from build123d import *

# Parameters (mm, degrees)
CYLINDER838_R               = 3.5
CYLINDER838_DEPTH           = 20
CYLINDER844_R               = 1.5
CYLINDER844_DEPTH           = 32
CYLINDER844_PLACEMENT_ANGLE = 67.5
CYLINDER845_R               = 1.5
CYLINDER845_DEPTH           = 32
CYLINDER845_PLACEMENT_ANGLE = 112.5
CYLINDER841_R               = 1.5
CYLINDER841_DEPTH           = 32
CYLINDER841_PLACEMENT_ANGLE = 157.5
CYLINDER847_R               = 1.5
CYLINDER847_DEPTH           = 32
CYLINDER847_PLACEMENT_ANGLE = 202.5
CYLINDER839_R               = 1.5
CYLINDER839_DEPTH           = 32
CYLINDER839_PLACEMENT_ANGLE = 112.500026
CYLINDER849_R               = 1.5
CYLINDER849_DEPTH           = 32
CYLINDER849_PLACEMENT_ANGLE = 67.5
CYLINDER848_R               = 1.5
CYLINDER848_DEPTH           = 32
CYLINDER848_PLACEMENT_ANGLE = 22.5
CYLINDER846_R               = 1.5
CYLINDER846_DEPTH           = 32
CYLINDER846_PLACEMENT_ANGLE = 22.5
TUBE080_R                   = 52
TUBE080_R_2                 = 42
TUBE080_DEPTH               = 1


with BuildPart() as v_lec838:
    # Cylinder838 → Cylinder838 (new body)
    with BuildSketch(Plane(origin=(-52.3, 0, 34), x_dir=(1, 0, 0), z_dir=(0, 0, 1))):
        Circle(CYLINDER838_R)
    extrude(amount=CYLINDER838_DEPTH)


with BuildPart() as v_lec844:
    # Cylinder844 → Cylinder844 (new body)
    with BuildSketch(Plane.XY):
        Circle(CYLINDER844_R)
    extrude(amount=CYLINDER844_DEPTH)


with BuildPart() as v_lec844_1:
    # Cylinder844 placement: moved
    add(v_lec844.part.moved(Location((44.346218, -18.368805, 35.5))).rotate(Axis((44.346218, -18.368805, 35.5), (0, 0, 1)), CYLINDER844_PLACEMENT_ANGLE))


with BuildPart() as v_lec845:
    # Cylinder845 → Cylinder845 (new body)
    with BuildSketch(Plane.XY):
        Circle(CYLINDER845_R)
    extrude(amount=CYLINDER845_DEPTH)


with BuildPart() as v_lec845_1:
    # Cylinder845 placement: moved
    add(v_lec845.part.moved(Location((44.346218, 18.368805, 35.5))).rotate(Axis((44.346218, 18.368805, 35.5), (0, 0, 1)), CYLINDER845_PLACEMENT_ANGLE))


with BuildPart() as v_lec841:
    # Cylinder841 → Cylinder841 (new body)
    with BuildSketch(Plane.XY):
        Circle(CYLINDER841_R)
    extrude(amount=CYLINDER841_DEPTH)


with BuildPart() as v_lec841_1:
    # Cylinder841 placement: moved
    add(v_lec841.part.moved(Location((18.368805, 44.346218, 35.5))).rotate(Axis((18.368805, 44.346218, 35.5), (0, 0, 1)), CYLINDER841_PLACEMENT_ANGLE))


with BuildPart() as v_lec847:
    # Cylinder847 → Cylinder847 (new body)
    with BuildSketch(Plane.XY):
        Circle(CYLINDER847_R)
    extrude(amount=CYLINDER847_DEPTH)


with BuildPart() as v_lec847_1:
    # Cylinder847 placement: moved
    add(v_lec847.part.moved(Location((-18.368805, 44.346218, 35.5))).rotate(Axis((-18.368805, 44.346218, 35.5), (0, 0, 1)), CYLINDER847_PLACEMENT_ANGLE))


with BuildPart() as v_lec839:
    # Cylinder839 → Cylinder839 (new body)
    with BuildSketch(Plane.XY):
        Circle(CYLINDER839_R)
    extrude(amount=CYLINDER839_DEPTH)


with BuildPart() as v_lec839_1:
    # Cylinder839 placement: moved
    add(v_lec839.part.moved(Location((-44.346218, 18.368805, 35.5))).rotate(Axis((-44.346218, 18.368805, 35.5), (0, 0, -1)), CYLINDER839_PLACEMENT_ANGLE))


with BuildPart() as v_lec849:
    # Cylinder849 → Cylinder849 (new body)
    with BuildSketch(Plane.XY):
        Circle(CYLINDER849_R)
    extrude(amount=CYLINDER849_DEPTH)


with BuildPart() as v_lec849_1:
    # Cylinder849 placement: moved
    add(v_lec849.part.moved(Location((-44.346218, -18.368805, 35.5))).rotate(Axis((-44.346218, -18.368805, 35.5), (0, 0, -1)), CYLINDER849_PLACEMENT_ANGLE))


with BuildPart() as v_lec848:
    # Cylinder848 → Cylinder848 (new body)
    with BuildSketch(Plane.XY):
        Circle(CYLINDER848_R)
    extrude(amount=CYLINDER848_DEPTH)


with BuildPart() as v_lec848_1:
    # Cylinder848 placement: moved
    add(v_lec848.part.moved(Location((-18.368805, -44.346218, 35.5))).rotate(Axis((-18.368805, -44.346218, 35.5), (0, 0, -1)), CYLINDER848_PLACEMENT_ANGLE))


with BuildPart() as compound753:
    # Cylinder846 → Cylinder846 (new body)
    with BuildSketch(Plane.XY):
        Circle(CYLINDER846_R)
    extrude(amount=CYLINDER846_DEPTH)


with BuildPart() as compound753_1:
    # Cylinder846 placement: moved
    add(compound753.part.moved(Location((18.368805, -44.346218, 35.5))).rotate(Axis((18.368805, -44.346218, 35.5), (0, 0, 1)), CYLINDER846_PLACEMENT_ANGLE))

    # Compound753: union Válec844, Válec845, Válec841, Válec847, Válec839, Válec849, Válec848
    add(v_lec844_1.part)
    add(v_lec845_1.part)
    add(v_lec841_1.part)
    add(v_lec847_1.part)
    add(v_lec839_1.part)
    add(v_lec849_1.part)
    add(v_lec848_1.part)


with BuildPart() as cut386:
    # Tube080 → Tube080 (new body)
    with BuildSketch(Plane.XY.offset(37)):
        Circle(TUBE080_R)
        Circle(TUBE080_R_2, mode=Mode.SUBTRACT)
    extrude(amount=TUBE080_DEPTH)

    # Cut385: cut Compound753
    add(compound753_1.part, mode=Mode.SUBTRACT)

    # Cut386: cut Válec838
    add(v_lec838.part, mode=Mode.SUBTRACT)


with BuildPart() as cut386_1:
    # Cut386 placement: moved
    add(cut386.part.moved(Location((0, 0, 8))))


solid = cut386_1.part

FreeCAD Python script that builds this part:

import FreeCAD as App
import Part
import Sketcher

V = App.Vector

doc = App.newDocument("Part")
params = doc.addObject("Spreadsheet::Sheet", "Params")
for row, (alias, value) in enumerate([
    ("sketch1_diameter", "7 mm"),
    ("pad1_length", "20 mm"),
    ("sketch2_diameter", "3 mm"),
    ("pad2_length", "32 mm"),
    ("sketch3_diameter", "3 mm"),
    ("pad3_length", "32 mm"),
    ("sketch4_diameter", "3 mm"),
    ("pad4_length", "32 mm"),
    ("sketch5_diameter", "3 mm"),
    ("pad5_length", "32 mm"),
    ("sketch6_diameter", "3 mm"),
    ("pad6_length", "32 mm"),
    ("sketch7_diameter", "3 mm"),
    ("pad7_length", "32 mm"),
    ("sketch8_diameter", "3 mm"),
    ("pad8_length", "32 mm"),
    ("sketch9_diameter", "3 mm"),
    ("pad9_length", "32 mm"),
    ("sketch10_diameter", "104 mm"),
    ("sketch10_diameter2", "84 mm"),
    ("pad10_length", "1 mm"),
], start=1):
    params.set(f"A{row}", alias)
    params.set(f"B{row}", "=" + value)
    params.setAlias(f"B{row}", alias)

body = doc.addObject("PartDesign::Body", "Body")

sketch1 = body.newObject("Sketcher::SketchObject", "Sketch")
sketch1.AttachmentSupport = (doc.getObject("XY_Plane"), [""])
sketch1.MapMode = "FlatFace"
sketch1.AttachmentOffset = App.Placement(V(0, 0, 34), App.Rotation())
sketch1.addGeometry(Part.Circle(V(-52.3, 0, 0), V(0, 0, 1), 3.5), False)
sketch1.addConstraint(Sketcher.Constraint("PointOnObject", 0, 3, -1))
sketch1.addConstraint(Sketcher.Constraint("Diameter", 0, 7.0))
sketch1.addConstraint(Sketcher.Constraint("DistanceX", 0, 3, -1, 1, 52.3))
sketch1.setExpression("Constraints[1]", "Params.sketch1_diameter")
pad1 = body.newObject("PartDesign::Pad", "Pad")
pad1.Profile = sketch1
pad1.setExpression("Length", "Params.pad1_length")
body2 = doc.addObject("PartDesign::Body", "Body001")

sketch2 = body2.newObject("Sketcher::SketchObject", "Sketch001")
sketch2.AttachmentSupport = (doc.getObject("XY_Plane001"), [""])
sketch2.MapMode = "FlatFace"
sketch2.addGeometry(Part.Circle(V(0, 0, 0), V(0, 0, 1), 1.5), False)
sketch2.addConstraint(Sketcher.Constraint("Coincident", 0, 3, -1, 1))
sketch2.addConstraint(Sketcher.Constraint("Diameter", 0, 3.0))
sketch2.setExpression("Constraints[1]", "Params.sketch2_diameter")
pad2 = body2.newObject("PartDesign::Pad", "Pad001")
pad2.Profile = sketch2
pad2.setExpression("Length", "Params.pad2_length")
body3 = doc.addObject("PartDesign::Body", "Body002")
doc.recompute()

body2.Placement = App.Placement(V(44.346218, -18.368805, 35.5), App.Rotation(V(0, 0, 1), 67.5))
boolean = body3.newObject("PartDesign::Boolean", "Boolean")
boolean.Type = "Fuse"
boolean.addObjects([body2])
body4 = doc.addObject("PartDesign::Body", "Body003")

sketch3 = body4.newObject("Sketcher::SketchObject", "Sketch002")
sketch3.AttachmentSupport = (doc.getObject("XY_Plane003"), [""])
sketch3.MapMode = "FlatFace"
sketch3.addGeometry(Part.Circle(V(0, 0, 0), V(0, 0, 1), 1.5), False)
sketch3.addConstraint(Sketcher.Constraint("Coincident", 0, 3, -1, 1))
sketch3.addConstraint(Sketcher.Constraint("Diameter", 0, 3.0))
sketch3.setExpression("Constraints[1]", "Params.sketch3_diameter")
pad3 = body4.newObject("PartDesign::Pad", "Pad002")
pad3.Profile = sketch3
pad3.setExpression("Length", "Params.pad3_length")
body5 = doc.addObject("PartDesign::Body", "Body004")
doc.recompute()

body4.Placement = App.Placement(V(44.346218, 18.368805, 35.5), App.Rotation(V(0, 0, 1), 112.5))
boolean2 = body5.newObject("PartDesign::Boolean", "Boolean001")
boolean2.Type = "Fuse"
boolean2.addObjects([body4])
body6 = doc.addObject("PartDesign::Body", "Body005")

sketch4 = body6.newObject("Sketcher::SketchObject", "Sketch003")
sketch4.AttachmentSupport = (doc.getObject("XY_Plane005"), [""])
sketch4.MapMode = "FlatFace"
sketch4.addGeometry(Part.Circle(V(0, 0, 0), V(0, 0, 1), 1.5), False)
sketch4.addConstraint(Sketcher.Constraint("Coincident", 0, 3, -1, 1))
sketch4.addConstraint(Sketcher.Constraint("Diameter", 0, 3.0))
sketch4.setExpression("Constraints[1]", "Params.sketch4_diameter")
pad4 = body6.newObject("PartDesign::Pad", "Pad003")
pad4.Profile = sketch4
pad4.setExpression("Length", "Params.pad4_length")
body7 = doc.addObject("PartDesign::Body", "Body006")
doc.recompute()

body6.Placement = App.Placement(V(18.368805, 44.346218, 35.5), App.Rotation(V(0, 0, 1), 157.5))
boolean3 = body7.newObject("PartDesign::Boolean", "Boolean002")
boolean3.Type = "Fuse"
boolean3.addObjects([body6])
body8 = doc.addObject("PartDesign::Body", "Body007")

sketch5 = body8.newObject("Sketcher::SketchObject", "Sketch004")
sketch5.AttachmentSupport = (doc.getObject("XY_Plane007"), [""])
sketch5.MapMode = "FlatFace"
sketch5.addGeometry(Part.Circle(V(0, 0, 0), V(0, 0, 1), 1.5), False)
sketch5.addConstraint(Sketcher.Constraint("Coincident", 0, 3, -1, 1))
sketch5.addConstraint(Sketcher.Constraint("Diameter", 0, 3.0))
sketch5.setExpression("Constraints[1]", "Params.sketch5_diameter")
pad5 = body8.newObject("PartDesign::Pad", "Pad004")
pad5.Profile = sketch5
pad5.setExpression("Length", "Params.pad5_length")
body9 = doc.addObject("PartDesign::Body", "Body008")
doc.recompute()

body8.Placement = App.Placement(V(-18.368805, 44.346218, 35.5), App.Rotation(V(0, 0, 1), 202.5))
boolean4 = body9.newObject("PartDesign::Boolean", "Boolean003")
boolean4.Type = "Fuse"
boolean4.addObjects([body8])
body10 = doc.addObject("PartDesign::Body", "Body009")

sketch6 = body10.newObject("Sketcher::SketchObject", "Sketch005")
sketch6.AttachmentSupport = (doc.getObject("XY_Plane009"), [""])
sketch6.MapMode = "FlatFace"
sketch6.addGeometry(Part.Circle(V(0, 0, 0), V(0, 0, 1), 1.5), False)
sketch6.addConstraint(Sketcher.Constraint("Coincident", 0, 3, -1, 1))
sketch6.addConstraint(Sketcher.Constraint("Diameter", 0, 3.0))
sketch6.setExpression("Constraints[1]", "Params.sketch6_diameter")
pad6 = body10.newObject("PartDesign::Pad", "Pad005")
pad6.Profile = sketch6
pad6.setExpression("Length", "Params.pad6_length")
body11 = doc.addObject("PartDesign::Body", "Body010")
doc.recompute()

body10.Placement = App.Placement(V(-44.346218, 18.368805, 35.5), App.Rotation(V(0, 0, -1), 112.500026))
boolean5 = body11.newObject("PartDesign::Boolean", "Boolean004")
boolean5.Type = "Fuse"
boolean5.addObjects([body10])
body12 = doc.addObject("PartDesign::Body", "Body011")

sketch7 = body12.newObject("Sketcher::SketchObject", "Sketch006")
sketch7.AttachmentSupport = (doc.getObject("XY_Plane011"), [""])
sketch7.MapMode = "FlatFace"
sketch7.addGeometry(Part.Circle(V(0, 0, 0), V(0, 0, 1), 1.5), False)
sketch7.addConstraint(Sketcher.Constraint("Coincident", 0, 3, -1, 1))
sketch7.addConstraint(Sketcher.Constraint("Diameter", 0, 3.0))
sketch7.setExpression("Constraints[1]", "Params.sketch7_diameter")
pad7 = body12.newObject("PartDesign::Pad", "Pad006")
pad7.Profile = sketch7
pad7.setExpression("Length", "Params.pad7_length")
body13 = doc.addObject("PartDesign::Body", "Body012")
doc.recompute()

body12.Placement = App.Placement(V(-44.346218, -18.368805, 35.5), App.Rotation(V(0, 0, -1), 67.5))
boolean6 = body13.newObject("PartDesign::Boolean", "Boolean005")
boolean6.Type = "Fuse"
boolean6.addObjects([body12])
body14 = doc.addObject("PartDesign::Body", "Body013")

sketch8 = body14.newObject("Sketcher::SketchObject", "Sketch007")
sketch8.AttachmentSupport = (doc.getObject("XY_Plane013"), [""])
sketch8.MapMode = "FlatFace"
sketch8.addGeometry(Part.Circle(V(0, 0, 0), V(0, 0, 1), 1.5), False)
sketch8.addConstraint(Sketcher.Constraint("Coincident", 0, 3, -1, 1))
sketch8.addConstraint(Sketcher.Constraint("Diameter", 0, 3.0))
sketch8.setExpression("Constraints[1]", "Params.sketch8_diameter")
pad8 = body14.newObject("PartDesign::Pad", "Pad007")
pad8.Profile = sketch8
pad8.setExpression("Length", "Params.pad8_length")
body15 = doc.addObject("PartDesign::Body", "Body014")
doc.recompute()

body14.Placement = App.Placement(V(-18.368805, -44.346218, 35.5), App.Rotation(V(0, 0, -1), 22.5))
boolean7 = body15.newObject("PartDesign::Boolean", "Boolean006")
boolean7.Type = "Fuse"
boolean7.addObjects([body14])
body16 = doc.addObject("PartDesign::Body", "Body015")

sketch9 = body16.newObject("Sketcher::SketchObject", "Sketch008")
sketch9.AttachmentSupport = (doc.getObject("XY_Plane015"), [""])
sketch9.MapMode = "FlatFace"
sketch9.addGeometry(Part.Circle(V(0, 0, 0), V(0, 0, 1), 1.5), False)
sketch9.addConstraint(Sketcher.Constraint("Coincident", 0, 3, -1, 1))
sketch9.addConstraint(Sketcher.Constraint("Diameter", 0, 3.0))
sketch9.setExpression("Constraints[1]", "Params.sketch9_diameter")
pad9 = body16.newObject("PartDesign::Pad", "Pad008")
pad9.Profile = sketch9
pad9.setExpression("Length", "Params.pad9_length")
body17 = doc.addObject("PartDesign::Body", "Body016")
body17.AllowCompound = True
doc.recompute()

body16.Placement = App.Placement(V(18.368805, -44.346218, 35.5), App.Rotation(V(0, 0, 1), 22.5))
boolean8 = body17.newObject("PartDesign::Boolean", "Boolean007")
boolean8.Type = "Fuse"
boolean8.addObjects([body16])
doc.recompute()

boolean9 = body17.newObject("PartDesign::Boolean", "Boolean008")
boolean9.Type = "Fuse"
boolean9.addObjects([body3])
doc.recompute()

boolean10 = body17.newObject("PartDesign::Boolean", "Boolean009")
boolean10.Type = "Fuse"
boolean10.addObjects([body5])
doc.recompute()

boolean11 = body17.newObject("PartDesign::Boolean", "Boolean010")
boolean11.Type = "Fuse"
boolean11.addObjects([body7])
doc.recompute()

boolean12 = body17.newObject("PartDesign::Boolean", "Boolean011")
boolean12.Type = "Fuse"
boolean12.addObjects([body9])
doc.recompute()

boolean13 = body17.newObject("PartDesign::Boolean", "Boolean012")
boolean13.Type = "Fuse"
boolean13.addObjects([body11])
doc.recompute()

boolean14 = body17.newObject("PartDesign::Boolean", "Boolean013")
boolean14.Type = "Fuse"
boolean14.addObjects([body13])
doc.recompute()

boolean15 = body17.newObject("PartDesign::Boolean", "Boolean014")
boolean15.Type = "Fuse"
boolean15.addObjects([body15])
body18 = doc.addObject("PartDesign::Body", "Body017")

sketch10 = body18.newObject("Sketcher::SketchObject", "Sketch009")
sketch10.AttachmentSupport = (doc.getObject("XY_Plane017"), [""])
sketch10.MapMode = "FlatFace"
sketch10.AttachmentOffset = App.Placement(V(0, 0, 37), App.Rotation())
sketch10.addGeometry(Part.Circle(V(0, 0, 0), V(0, 0, 1), 52), False)
sketch10.addGeometry(Part.Circle(V(0, 0, 0), V(0, 0, 1), 42), False)
sketch10.addConstraint(Sketcher.Constraint("Coincident", 0, 3, -1, 1))
sketch10.addConstraint(Sketcher.Constraint("Coincident", 1, 3, -1, 1))
sketch10.addConstraint(Sketcher.Constraint("Diameter", 0, 104.0))
sketch10.addConstraint(Sketcher.Constraint("Diameter", 1, 84.0))
sketch10.setExpression("Constraints[2]", "Params.sketch10_diameter")
sketch10.setExpression("Constraints[3]", "Params.sketch10_diameter2")
pad10 = body18.newObject("PartDesign::Pad", "Pad009")
pad10.Profile = sketch10
pad10.setExpression("Length", "Params.pad10_length")
doc.recompute()

boolean16 = body18.newObject("PartDesign::Boolean", "Boolean015")
boolean16.Type = "Cut"
boolean16.addObjects([body17])
doc.recompute()

boolean17 = body18.newObject("PartDesign::Boolean", "Boolean016")
boolean17.Type = "Cut"
boolean17.addObjects([body])
body19 = doc.addObject("PartDesign::Body", "Body018")
doc.recompute()

body18.Placement = App.Placement(V(0, 0, 8), App.Rotation(V(0, 0, 1), 0))
boolean18 = body19.newObject("PartDesign::Boolean", "Boolean017")
boolean18.Type = "Fuse"
boolean18.addObjects([body18])

doc.recompute()
